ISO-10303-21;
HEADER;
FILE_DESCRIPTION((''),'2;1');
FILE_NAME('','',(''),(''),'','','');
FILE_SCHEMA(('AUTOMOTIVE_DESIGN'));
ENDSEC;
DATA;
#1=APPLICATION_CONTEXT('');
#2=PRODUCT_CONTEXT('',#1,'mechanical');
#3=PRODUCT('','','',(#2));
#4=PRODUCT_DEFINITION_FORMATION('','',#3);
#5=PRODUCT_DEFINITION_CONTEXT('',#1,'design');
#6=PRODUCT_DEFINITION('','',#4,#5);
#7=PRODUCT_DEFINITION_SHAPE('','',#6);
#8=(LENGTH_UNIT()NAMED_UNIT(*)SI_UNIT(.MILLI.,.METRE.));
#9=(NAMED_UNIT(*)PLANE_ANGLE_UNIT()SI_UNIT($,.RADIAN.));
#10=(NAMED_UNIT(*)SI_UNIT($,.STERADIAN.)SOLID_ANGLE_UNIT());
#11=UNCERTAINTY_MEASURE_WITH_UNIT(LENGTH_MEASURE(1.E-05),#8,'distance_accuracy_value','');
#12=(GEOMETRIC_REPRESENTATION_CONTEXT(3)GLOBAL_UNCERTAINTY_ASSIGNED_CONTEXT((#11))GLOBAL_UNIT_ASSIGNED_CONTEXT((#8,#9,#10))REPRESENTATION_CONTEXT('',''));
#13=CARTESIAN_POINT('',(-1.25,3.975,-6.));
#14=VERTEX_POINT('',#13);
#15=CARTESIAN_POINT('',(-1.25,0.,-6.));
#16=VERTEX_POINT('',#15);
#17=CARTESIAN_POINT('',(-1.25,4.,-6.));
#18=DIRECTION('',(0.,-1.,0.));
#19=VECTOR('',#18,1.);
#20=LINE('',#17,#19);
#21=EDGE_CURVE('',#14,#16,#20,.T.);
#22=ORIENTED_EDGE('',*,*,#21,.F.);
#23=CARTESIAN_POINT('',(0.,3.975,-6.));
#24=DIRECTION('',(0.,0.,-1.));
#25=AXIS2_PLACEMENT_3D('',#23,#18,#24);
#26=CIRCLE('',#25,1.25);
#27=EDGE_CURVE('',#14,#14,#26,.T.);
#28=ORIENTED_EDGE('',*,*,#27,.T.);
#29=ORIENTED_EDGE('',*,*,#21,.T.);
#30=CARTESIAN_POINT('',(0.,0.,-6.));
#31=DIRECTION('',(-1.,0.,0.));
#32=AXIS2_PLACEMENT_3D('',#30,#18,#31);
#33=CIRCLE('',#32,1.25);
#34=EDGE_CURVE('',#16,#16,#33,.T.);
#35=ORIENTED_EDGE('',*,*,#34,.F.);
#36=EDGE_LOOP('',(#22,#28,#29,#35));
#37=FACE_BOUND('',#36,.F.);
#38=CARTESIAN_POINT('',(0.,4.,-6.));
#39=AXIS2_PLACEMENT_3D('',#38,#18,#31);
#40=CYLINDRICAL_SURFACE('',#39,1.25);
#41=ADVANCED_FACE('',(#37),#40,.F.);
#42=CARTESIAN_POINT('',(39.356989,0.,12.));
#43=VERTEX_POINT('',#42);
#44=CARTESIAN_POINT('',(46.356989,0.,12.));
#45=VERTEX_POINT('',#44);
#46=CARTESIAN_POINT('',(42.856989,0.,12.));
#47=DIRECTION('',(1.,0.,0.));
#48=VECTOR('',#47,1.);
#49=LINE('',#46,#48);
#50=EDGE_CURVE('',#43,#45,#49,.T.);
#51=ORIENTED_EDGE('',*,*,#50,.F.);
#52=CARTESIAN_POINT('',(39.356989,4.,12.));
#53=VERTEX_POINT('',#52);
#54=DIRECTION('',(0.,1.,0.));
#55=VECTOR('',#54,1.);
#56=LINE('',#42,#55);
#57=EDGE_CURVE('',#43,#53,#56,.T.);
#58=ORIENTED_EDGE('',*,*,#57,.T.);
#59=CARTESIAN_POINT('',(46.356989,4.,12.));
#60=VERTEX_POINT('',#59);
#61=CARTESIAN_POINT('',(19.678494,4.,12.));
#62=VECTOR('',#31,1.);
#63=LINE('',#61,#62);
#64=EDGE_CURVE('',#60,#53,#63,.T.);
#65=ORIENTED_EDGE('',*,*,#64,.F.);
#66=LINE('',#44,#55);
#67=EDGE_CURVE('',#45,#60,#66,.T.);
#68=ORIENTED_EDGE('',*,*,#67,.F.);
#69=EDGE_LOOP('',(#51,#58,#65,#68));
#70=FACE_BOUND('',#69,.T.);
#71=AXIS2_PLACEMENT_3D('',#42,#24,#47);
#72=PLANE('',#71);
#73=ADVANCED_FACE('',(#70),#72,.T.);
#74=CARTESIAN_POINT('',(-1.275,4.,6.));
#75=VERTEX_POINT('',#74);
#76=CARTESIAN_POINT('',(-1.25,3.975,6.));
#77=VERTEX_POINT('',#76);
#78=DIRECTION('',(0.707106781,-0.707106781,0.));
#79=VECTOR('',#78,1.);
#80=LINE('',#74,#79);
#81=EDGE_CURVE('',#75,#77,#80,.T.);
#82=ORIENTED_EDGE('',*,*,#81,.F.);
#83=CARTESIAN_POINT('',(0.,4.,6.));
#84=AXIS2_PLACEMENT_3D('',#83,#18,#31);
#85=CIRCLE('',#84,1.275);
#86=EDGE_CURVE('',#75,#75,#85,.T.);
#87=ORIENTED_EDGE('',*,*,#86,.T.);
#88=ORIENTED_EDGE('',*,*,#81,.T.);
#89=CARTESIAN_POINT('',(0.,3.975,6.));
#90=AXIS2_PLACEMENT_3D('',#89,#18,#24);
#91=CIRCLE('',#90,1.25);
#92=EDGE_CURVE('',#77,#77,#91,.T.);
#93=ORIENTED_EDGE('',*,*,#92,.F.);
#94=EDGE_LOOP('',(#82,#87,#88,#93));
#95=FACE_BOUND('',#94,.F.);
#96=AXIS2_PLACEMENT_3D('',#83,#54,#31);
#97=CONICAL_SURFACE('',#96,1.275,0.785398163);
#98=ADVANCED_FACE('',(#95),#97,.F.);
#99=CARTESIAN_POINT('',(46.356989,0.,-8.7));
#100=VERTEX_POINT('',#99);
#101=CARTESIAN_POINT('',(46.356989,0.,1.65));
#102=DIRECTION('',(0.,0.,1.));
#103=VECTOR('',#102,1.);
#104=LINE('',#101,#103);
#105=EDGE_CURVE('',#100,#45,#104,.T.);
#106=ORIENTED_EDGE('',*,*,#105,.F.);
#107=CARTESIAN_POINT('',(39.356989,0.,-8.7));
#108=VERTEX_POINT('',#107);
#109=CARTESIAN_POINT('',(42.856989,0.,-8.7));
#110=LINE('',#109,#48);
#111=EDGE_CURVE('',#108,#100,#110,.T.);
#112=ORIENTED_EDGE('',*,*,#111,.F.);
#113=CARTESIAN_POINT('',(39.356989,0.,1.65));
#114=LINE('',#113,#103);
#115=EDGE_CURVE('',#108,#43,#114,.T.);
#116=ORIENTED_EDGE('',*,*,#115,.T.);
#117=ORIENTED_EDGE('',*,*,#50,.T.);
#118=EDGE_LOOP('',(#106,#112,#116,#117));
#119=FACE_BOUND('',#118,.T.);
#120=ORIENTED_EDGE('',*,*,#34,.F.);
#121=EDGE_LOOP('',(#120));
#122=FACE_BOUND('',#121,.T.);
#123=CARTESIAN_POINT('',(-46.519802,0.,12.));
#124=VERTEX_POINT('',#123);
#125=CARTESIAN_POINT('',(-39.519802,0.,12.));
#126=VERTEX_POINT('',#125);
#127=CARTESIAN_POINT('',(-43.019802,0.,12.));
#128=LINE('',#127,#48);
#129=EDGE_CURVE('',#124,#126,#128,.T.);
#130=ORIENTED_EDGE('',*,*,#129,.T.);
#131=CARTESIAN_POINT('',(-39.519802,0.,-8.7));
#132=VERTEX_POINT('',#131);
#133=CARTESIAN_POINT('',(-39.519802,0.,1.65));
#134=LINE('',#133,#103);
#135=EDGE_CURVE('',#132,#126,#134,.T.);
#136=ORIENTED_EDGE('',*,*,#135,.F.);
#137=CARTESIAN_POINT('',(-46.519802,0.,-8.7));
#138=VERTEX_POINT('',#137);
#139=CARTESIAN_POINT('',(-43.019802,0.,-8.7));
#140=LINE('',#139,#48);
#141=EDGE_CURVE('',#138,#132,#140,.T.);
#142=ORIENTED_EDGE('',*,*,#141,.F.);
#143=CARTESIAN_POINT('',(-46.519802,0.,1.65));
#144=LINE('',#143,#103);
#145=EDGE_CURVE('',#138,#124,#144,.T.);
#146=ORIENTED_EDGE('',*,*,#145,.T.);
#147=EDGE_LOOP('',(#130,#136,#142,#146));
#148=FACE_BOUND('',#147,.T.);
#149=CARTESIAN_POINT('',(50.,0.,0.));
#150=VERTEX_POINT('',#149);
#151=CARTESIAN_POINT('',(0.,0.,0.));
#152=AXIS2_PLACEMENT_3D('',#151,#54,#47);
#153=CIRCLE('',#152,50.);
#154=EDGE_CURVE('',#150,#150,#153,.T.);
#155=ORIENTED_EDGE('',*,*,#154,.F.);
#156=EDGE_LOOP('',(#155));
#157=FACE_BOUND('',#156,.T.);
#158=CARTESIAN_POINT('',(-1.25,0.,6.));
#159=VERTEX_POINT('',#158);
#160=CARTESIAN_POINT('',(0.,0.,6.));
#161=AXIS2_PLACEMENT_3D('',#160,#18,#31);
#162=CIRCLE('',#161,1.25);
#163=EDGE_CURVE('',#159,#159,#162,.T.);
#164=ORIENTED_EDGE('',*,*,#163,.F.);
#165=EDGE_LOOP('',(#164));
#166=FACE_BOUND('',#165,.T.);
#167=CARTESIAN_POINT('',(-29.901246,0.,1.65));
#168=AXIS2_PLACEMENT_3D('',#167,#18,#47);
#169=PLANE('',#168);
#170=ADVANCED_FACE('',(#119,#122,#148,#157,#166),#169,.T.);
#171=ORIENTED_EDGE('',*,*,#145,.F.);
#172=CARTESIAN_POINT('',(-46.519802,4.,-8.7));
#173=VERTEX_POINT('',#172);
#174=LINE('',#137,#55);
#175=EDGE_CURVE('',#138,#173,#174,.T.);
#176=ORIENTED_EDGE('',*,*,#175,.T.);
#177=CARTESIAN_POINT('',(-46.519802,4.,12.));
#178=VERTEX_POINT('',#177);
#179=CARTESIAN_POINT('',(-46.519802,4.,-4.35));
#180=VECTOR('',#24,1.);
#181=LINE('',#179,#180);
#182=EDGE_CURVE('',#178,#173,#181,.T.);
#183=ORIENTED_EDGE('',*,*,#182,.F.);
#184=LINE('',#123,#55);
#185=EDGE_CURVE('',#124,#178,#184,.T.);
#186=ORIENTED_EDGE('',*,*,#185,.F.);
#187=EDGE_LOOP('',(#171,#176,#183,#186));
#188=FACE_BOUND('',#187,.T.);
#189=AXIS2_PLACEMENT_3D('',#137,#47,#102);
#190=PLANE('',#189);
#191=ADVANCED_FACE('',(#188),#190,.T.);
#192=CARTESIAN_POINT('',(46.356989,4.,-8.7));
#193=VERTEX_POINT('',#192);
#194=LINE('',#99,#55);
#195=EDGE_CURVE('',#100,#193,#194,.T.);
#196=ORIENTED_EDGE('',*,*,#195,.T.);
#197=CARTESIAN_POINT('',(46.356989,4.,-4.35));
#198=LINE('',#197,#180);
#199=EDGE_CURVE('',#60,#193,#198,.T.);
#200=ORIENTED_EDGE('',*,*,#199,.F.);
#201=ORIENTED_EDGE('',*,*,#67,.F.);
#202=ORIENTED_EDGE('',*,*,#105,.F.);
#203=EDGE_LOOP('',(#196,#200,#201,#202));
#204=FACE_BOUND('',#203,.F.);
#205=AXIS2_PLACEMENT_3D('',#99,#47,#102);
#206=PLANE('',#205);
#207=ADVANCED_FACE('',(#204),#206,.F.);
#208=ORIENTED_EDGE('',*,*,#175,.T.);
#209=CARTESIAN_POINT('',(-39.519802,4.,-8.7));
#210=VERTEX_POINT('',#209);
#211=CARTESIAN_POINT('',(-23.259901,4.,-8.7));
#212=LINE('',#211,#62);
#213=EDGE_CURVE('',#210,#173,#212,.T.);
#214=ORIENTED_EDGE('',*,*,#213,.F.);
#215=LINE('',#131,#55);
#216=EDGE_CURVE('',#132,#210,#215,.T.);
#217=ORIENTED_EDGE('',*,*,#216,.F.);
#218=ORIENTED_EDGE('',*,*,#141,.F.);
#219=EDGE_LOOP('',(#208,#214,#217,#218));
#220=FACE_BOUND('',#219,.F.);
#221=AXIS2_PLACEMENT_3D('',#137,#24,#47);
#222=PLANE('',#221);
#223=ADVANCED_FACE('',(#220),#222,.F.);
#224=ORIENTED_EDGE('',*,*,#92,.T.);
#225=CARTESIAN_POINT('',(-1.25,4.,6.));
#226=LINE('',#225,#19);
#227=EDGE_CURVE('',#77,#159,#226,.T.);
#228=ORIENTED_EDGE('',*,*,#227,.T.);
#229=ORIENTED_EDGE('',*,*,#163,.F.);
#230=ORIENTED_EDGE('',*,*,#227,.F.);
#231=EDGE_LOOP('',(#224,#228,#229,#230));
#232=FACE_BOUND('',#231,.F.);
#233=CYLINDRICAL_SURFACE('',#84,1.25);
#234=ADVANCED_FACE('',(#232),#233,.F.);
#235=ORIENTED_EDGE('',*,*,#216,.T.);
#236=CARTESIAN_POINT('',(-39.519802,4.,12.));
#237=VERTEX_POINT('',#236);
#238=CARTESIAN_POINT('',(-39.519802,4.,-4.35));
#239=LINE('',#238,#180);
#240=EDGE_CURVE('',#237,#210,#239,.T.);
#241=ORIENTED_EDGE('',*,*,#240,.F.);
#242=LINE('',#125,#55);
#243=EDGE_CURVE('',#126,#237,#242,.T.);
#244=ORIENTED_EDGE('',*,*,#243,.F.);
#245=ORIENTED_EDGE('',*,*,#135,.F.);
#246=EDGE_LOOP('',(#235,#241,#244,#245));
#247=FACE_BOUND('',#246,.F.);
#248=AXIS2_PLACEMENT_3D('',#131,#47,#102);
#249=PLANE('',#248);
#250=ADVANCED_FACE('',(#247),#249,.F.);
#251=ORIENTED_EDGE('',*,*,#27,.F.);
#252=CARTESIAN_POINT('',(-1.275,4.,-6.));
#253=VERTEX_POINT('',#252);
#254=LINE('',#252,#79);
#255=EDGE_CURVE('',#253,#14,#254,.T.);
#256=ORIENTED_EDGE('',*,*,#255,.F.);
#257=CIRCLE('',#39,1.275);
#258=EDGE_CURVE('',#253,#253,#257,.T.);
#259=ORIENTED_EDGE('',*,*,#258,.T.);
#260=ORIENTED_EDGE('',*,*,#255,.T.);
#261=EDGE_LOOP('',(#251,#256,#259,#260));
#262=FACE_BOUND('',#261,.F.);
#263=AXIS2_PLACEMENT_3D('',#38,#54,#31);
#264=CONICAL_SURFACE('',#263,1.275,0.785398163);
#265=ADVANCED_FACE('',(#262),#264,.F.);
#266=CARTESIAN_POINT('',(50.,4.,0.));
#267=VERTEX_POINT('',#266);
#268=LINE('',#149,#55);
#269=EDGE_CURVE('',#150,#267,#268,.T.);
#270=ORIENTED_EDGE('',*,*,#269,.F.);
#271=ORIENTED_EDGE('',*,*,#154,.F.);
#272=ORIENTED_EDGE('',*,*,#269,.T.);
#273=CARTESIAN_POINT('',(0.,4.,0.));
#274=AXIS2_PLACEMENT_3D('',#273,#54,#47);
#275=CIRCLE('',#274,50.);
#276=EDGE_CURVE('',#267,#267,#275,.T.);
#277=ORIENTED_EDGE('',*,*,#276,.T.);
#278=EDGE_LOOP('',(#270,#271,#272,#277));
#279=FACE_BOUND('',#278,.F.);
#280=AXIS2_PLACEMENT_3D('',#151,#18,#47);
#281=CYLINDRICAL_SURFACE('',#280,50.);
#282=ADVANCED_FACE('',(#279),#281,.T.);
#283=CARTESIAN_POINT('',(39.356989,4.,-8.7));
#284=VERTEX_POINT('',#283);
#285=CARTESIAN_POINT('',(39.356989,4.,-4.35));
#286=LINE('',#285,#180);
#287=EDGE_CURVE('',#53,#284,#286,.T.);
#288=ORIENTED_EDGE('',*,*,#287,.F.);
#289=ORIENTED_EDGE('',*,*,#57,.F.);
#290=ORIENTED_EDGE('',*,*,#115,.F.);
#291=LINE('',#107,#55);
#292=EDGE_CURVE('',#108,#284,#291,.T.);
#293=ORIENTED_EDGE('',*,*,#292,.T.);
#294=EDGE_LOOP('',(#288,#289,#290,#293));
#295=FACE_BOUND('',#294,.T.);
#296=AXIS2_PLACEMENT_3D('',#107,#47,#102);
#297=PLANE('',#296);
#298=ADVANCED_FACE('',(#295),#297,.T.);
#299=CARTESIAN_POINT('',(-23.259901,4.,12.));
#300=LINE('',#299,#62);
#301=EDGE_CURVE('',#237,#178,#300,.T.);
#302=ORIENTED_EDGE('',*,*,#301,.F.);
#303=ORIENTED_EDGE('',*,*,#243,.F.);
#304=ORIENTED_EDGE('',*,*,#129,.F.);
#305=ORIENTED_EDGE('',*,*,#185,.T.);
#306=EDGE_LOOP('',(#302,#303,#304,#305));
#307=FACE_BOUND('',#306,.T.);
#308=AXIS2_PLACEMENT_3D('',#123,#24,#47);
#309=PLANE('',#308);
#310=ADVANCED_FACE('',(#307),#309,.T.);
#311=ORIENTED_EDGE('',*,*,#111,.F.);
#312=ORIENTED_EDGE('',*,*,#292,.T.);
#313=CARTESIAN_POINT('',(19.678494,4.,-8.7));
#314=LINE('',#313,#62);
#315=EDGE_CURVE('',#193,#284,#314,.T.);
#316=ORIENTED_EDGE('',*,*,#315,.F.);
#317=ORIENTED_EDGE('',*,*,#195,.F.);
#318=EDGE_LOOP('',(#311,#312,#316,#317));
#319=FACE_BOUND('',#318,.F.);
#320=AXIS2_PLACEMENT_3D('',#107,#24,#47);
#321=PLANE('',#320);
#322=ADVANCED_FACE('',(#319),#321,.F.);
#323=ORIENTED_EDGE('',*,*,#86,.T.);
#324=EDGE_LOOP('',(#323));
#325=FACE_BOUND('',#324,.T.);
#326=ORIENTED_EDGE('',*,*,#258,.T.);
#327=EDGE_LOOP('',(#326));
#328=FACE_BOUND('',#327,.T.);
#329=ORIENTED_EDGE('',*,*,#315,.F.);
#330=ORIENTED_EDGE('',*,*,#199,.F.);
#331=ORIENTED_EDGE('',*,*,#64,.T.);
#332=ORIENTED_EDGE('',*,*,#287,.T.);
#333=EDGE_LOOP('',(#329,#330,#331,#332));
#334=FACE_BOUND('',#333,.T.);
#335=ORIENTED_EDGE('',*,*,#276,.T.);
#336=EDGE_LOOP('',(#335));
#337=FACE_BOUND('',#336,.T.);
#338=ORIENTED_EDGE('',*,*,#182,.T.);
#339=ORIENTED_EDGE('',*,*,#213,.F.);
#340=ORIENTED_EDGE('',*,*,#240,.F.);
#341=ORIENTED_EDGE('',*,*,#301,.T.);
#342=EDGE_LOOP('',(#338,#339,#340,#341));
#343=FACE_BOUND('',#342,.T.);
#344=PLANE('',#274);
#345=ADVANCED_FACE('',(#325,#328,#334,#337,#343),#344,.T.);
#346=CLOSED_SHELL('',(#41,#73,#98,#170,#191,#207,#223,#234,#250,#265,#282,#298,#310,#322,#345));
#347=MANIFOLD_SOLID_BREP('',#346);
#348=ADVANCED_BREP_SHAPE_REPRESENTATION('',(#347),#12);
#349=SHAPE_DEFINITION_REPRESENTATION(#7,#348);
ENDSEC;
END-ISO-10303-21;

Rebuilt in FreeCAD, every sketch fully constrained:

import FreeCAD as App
import Part
import Sketcher


def add_polygon(sketch, points):
    """Adds a closed chain of lines whose ends are joined by coincident constraints."""
    first, n = sketch.GeometryCount, len(points)
    for a, b in zip(points, points[1:] + points[:1]):
        sketch.addGeometry(Part.LineSegment(App.Vector(*a, 0), App.Vector(*b, 0)), False)
    for i in range(n):
        sketch.addConstraint(Sketcher.Constraint("Coincident", first + i, 2, first + (i + 1) % n, 1))

doc = App.newDocument("Part")
body = doc.addObject("PartDesign::Body", "Body")

# Sketch on XZ plane
sketch1 = body.newObject("Sketcher::SketchObject", "Sketch")
sketch1.AttachmentSupport = (doc.getObject("XZ_Plane"), [""])
sketch1.MapMode = "FlatFace"
sketch1.addGeometry(Part.Circle(App.Vector(0, 0, 0), App.Vector(0, 0, 1), 50), False)  # 0
add_polygon(sketch1, [(-26, 12), (-33, 12), (-33, -9), (-26, -9)])  # lines 1-4
add_polygon(sketch1, [(33, 12), (26, 12), (26, -9), (33, -9)])  # lines 5-8
sketch1.addConstraint([
    Sketcher.Constraint("Horizontal", 1),
    Sketcher.Constraint("Vertical", 2),
    Sketcher.Constraint("Horizontal", 3),
    Sketcher.Constraint("Vertical", 4),
    Sketcher.Constraint("Horizontal", 5),
    Sketcher.Constraint("Vertical", 6),
    Sketcher.Constraint("Horizontal", 7),
    Sketcher.Constraint("Vertical", 8),
    Sketcher.Constraint("Coincident", 0, 3, -1, 1),
    Sketcher.Constraint("Symmetric", 4, 2, 5, 2, -2),
    Sketcher.Constraint("Symmetric", 2, 2, 7, 2, -2),
    Sketcher.Constraint("Diameter", 0, 100.0),
    Sketcher.Constraint("DistanceX", 1, 2, 1, 1, 7.0),
    Sketcher.Constraint("DistanceY", 2, 2, 2, 1, 20.7),
    Sketcher.Constraint("DistanceY", -1, 1, 1, 2, 12.0),
    Sketcher.Constraint("DistanceX", 1, 2, -1, 1, 33.401246),
])
pad1 = body.newObject("PartDesign::Pad", "Pad")
pad1.Profile = sketch1
pad1.Length = 4
pad1.Reversed = True

# Sketch on XZ plane
sketch2 = body.newObject("Sketcher::SketchObject", "Sketch001")
sketch2.AttachmentSupport = (doc.getObject("XZ_Plane"), [""])
sketch2.MapMode = "FlatFace"
sketch2.AttachmentOffset = App.Placement(App.Vector(0, 0, -4), App.Rotation())
sketch2.addGeometry([
    Part.Circle(App.Vector(0, -6, 0), App.Vector(0, 0, 1), 1.2),
    Part.Circle(App.Vector(0, 6, 0), App.Vector(0, 0, 1), 1.2),
], False)
sketch2.addConstraint([
    Sketcher.Constraint("Equal", 0, 1),
    Sketcher.Constraint("Symmetric", 0, 3, 1, 3, -1, 1),
    Sketcher.Constraint("PointOnObject", 0, 3, -2),
    Sketcher.Constraint("Diameter", 0, 2.5),
    Sketcher.Constraint("DistanceY", 0, 3, -1, 1, 6.0),
])
doc.recompute()
hole = body.newObject("PartDesign::Hole", "Hole")
hole.Profile = sketch2
hole.ThreadType = "None"
hole.Diameter = 2.5
hole.DepthType = "ThroughAll"
hole.HoleCutType = "Countersink"
hole.HoleCutDiameter = 2.55
hole.HoleCutCountersinkAngle = 90
hole.Reversed = True

# Sketch on XZ plane
sketch3 = body.newObject("Sketcher::SketchObject", "Sketch002")
sketch3.AttachmentSupport = (doc.getObject("XZ_Plane"), [""])
sketch3.MapMode = "FlatFace"
add_polygon(sketch3, [(-33, 12), (-33, -9), (-26, -9), (-26, 12)])  # lines 0-3
add_polygon(sketch3, [(26, 12), (26, -9), (33, -9), (33, 12)])  # lines 4-7
sketch3.addConstraint([
    Sketcher.Constraint("Vertical", 0),
    Sketcher.Constraint("Horizontal", 1),
    Sketcher.Constraint("Vertical", 2),
    Sketcher.Constraint("Horizontal", 3),
    Sketcher.Constraint("Vertical", 4),
    Sketcher.Constraint("Horizontal", 5),
    Sketcher.Constraint("Vertical", 6),
    Sketcher.Constraint("Horizontal", 7),
    Sketcher.Constraint("Symmetric", 1, 2, 4, 2, -2),
    Sketcher.Constraint("Symmetric", 3, 2, 6, 2, -2),
    Sketcher.Constraint("DistanceX", 1, 1, 1, 2, 7.0),
    Sketcher.Constraint("DistanceY", 0, 2, 0, 1, 20.7),
    Sketcher.Constraint("DistanceY", -1, 1, 2, 2, 12.0),
    Sketcher.Constraint("DistanceX", 0, 2, -1, 1, 33.401246),
])
pad2 = body.newObject("PartDesign::Pad", "Pad001")
pad2.Profile = sketch3
pad2.Length = 4
pad2.Reversed = True

# Sketch on XZ plane
sketch4 = body.newObject("Sketcher::SketchObject", "Sketch003")
sketch4.AttachmentSupport = (doc.getObject("XZ_Plane"), [""])
sketch4.MapMode = "FlatFace"
add_polygon(sketch4, [(-47, 12), (-47, -9), (-40, -9), (-40, 12)])  # lines 0-3
add_polygon(sketch4, [(39, 12), (39, -9), (46, -9), (46, 12)])  # lines 4-7
sketch4.addConstraint([
    Sketcher.Constraint("Vertical", 0),
    Sketcher.Constraint("Horizontal", 1),
    Sketcher.Constraint("Vertical", 2),
    Sketcher.Constraint("Horizontal", 3),
    Sketcher.Constraint("Vertical", 4),
    Sketcher.Constraint("Horizontal", 5),
    Sketcher.Constraint("Vertical", 6),
    Sketcher.Constraint("Horizontal", 7),
    Sketcher.Constraint("Horizontal", 1, 2, 4, 2),
    Sketcher.Constraint("Horizontal", 3, 2, 6, 2),
    Sketcher.Constraint("Equal", 3, 5),
    Sketcher.Constraint("DistanceX", 1, 1, 1, 2, 7.0),
    Sketcher.Constraint("DistanceY", 0, 2, 0, 1, 20.7),
    Sketcher.Constraint("DistanceY", -1, 1, 2, 2, 12.0),
    Sketcher.Constraint("DistanceX", 0, 2, -1, 1, 46.519802),
    Sketcher.Constraint("DistanceX", -1, 1, 4, 2, 39.356989),
])
pocket1 = body.newObject("PartDesign::Pocket", "Pocket")
pocket1.Profile = sketch4
pocket1.Length = 10

doc.recompute()
